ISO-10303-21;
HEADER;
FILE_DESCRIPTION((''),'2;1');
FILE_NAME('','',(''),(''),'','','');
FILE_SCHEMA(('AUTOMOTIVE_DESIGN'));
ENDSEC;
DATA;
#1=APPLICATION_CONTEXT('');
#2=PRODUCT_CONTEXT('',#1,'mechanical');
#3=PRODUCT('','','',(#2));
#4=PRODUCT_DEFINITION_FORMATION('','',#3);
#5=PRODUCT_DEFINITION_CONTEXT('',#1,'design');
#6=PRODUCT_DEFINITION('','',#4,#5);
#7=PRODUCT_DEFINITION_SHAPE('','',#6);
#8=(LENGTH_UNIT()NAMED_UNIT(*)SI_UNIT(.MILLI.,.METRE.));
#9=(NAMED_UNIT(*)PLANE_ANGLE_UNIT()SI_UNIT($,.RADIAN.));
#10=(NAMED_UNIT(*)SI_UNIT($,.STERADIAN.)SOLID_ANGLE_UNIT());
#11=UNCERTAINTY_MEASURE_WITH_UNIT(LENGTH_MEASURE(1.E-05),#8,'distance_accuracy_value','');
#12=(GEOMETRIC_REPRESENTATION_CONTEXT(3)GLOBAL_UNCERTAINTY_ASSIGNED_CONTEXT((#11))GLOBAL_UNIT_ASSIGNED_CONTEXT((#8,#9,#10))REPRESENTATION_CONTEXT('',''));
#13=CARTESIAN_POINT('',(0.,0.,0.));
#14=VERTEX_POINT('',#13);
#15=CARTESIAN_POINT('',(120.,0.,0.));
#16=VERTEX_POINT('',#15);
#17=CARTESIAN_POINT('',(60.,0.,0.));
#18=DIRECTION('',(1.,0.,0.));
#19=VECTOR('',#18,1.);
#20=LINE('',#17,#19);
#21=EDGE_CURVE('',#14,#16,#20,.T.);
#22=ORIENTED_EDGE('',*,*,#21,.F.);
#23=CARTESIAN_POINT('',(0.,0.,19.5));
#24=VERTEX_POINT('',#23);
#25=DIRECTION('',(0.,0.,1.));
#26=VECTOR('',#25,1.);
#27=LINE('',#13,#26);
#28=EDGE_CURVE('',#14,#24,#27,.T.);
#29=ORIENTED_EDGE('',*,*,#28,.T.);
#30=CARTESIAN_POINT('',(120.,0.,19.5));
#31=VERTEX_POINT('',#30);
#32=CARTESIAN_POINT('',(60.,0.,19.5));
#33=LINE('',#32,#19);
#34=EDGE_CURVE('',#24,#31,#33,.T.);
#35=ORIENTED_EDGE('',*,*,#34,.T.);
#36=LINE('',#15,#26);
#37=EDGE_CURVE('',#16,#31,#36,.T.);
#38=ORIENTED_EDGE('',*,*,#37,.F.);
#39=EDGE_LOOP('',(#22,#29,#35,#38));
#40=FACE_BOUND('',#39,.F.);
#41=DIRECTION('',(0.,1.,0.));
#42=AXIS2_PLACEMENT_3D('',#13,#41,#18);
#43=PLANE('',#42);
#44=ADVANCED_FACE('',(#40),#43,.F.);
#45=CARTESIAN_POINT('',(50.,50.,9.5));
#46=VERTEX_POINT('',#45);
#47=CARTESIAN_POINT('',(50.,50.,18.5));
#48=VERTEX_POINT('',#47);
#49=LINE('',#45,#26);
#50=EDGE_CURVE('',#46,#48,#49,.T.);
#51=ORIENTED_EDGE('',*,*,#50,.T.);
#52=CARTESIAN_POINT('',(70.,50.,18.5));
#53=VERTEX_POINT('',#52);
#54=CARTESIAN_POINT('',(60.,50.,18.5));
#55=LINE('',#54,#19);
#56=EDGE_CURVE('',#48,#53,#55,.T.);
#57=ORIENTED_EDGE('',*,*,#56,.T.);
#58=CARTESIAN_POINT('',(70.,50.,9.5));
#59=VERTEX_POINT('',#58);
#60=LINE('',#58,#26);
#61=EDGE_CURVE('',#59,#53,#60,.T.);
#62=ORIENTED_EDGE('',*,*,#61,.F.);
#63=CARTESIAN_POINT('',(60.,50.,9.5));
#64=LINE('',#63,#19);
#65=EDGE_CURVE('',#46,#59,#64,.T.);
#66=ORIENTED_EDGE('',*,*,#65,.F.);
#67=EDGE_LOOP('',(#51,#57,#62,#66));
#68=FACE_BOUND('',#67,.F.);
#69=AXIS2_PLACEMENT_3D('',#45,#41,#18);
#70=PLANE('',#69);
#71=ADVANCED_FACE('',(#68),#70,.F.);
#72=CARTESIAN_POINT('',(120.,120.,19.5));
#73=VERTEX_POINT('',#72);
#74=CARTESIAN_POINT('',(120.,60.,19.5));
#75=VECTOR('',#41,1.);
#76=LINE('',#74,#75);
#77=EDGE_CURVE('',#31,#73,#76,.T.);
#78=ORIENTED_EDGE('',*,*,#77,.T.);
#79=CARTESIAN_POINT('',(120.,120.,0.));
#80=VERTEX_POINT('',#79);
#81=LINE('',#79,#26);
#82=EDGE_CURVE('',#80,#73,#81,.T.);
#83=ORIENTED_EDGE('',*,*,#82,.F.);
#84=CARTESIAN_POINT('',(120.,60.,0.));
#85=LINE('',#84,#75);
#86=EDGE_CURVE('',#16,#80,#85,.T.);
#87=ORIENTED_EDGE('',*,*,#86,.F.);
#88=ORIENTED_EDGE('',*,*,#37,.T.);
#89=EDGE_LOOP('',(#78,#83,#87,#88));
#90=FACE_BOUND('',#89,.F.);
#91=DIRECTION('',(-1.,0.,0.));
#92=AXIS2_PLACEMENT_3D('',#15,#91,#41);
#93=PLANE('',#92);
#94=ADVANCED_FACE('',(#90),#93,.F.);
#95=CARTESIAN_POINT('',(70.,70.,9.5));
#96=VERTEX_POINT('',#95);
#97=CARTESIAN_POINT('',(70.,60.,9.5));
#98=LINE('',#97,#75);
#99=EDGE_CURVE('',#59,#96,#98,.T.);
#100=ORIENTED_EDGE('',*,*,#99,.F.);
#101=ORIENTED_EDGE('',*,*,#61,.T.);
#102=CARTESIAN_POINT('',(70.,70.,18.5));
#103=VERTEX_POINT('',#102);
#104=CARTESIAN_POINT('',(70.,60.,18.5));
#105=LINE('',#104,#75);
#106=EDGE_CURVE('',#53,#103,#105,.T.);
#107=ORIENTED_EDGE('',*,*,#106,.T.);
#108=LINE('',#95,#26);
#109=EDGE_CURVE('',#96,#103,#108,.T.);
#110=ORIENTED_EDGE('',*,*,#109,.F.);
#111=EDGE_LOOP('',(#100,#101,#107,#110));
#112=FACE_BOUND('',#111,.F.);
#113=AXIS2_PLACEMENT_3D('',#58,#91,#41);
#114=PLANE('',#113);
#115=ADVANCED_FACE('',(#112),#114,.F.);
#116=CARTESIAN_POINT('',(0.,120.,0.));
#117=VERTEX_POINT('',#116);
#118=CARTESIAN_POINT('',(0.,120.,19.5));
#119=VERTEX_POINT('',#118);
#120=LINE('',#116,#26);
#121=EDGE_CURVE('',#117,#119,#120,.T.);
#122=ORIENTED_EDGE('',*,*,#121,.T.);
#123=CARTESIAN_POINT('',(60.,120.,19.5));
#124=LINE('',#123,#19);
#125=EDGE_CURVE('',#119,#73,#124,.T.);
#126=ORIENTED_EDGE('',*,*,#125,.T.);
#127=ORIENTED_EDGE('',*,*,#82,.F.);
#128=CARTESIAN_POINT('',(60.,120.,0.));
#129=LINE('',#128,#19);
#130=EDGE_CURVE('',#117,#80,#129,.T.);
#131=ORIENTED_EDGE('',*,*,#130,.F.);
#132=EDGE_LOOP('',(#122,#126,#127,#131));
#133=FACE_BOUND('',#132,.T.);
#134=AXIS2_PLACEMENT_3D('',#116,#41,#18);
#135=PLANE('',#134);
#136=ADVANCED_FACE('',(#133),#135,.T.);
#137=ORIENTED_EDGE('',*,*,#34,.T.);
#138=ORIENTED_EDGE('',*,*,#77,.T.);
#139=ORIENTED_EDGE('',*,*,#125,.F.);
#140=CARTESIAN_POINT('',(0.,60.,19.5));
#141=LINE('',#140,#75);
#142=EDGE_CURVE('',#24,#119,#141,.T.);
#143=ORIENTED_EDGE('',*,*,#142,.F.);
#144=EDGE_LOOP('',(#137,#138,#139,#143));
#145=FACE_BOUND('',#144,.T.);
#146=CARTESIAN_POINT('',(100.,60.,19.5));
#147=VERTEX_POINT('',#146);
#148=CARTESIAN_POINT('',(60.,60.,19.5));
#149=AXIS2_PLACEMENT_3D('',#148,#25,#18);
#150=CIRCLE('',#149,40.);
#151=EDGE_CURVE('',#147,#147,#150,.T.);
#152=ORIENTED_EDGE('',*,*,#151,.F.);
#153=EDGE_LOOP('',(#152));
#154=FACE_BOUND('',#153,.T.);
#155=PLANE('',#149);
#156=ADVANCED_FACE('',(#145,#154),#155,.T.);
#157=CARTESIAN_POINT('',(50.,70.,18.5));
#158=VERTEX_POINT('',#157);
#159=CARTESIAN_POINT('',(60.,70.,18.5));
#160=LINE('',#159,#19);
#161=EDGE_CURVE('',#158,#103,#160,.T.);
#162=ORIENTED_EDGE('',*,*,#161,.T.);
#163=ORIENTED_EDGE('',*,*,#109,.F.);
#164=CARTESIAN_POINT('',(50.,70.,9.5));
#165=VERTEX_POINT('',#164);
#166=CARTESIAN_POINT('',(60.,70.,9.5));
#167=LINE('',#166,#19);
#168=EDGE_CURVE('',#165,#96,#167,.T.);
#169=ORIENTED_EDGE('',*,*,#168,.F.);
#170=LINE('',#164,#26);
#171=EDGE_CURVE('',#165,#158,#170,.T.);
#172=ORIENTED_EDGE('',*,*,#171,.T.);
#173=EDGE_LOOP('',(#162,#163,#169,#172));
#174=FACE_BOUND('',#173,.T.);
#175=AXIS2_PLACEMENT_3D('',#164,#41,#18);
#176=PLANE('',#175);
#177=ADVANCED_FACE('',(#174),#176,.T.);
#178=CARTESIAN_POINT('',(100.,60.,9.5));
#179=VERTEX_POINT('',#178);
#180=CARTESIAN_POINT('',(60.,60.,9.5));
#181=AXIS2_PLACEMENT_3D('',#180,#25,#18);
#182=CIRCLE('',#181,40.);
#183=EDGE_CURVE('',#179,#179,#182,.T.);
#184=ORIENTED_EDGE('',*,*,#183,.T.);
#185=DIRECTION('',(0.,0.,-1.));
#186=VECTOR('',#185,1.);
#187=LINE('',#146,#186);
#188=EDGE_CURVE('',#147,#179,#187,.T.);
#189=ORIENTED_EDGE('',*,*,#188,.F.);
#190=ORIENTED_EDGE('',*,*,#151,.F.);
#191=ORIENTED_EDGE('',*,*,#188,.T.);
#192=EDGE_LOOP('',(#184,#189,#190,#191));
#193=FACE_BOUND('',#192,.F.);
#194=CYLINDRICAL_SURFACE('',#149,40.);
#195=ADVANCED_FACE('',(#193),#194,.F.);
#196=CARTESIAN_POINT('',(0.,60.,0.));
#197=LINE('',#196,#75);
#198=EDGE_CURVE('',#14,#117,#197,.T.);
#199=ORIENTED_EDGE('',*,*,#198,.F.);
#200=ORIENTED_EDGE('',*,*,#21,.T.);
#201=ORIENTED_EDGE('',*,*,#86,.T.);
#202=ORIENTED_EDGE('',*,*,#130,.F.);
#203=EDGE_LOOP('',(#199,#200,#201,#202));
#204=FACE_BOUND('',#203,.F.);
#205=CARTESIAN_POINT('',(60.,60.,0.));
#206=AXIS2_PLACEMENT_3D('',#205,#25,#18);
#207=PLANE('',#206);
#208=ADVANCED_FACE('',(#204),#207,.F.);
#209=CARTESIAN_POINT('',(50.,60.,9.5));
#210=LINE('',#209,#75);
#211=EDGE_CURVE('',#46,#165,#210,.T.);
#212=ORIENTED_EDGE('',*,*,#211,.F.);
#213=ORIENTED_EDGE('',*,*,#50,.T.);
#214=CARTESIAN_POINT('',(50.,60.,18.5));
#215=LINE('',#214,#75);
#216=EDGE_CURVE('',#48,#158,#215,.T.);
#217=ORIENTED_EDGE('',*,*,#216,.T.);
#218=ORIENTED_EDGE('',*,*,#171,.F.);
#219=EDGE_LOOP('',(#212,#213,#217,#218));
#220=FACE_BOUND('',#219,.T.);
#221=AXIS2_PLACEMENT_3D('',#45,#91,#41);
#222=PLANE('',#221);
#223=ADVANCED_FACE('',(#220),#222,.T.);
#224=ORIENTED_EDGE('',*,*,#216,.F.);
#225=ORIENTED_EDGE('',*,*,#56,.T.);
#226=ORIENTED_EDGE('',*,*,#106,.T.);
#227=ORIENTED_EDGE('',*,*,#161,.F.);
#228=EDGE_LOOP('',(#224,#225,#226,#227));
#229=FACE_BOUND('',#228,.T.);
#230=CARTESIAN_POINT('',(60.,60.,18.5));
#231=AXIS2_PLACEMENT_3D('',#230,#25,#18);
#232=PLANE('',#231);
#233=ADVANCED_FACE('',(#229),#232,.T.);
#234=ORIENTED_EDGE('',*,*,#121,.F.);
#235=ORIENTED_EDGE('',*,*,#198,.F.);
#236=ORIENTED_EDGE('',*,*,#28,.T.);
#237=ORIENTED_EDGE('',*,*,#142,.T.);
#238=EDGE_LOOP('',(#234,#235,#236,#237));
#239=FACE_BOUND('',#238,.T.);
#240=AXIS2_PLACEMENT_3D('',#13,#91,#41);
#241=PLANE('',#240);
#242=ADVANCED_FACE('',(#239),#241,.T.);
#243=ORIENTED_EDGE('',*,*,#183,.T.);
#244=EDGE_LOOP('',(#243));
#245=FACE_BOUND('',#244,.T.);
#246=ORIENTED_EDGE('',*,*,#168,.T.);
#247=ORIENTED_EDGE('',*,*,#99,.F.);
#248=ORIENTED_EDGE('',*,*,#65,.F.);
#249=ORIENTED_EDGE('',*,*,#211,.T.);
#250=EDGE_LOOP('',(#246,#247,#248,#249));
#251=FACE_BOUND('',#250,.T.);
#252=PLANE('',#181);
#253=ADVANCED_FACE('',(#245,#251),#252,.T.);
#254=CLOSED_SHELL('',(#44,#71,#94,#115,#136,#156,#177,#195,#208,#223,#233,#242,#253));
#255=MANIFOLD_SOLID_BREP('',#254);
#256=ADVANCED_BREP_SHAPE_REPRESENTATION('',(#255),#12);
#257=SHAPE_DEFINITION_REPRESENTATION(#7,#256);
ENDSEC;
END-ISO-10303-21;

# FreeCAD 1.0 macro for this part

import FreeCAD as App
import Part
import Sketcher

V = App.Vector

doc = App.newDocument("Part")
body = doc.addObject("PartDesign::Body", "Body")

# Sketch on XY plane
sketch1 = body.newObject("Sketcher::SketchObject", "Sketch")
sketch1.AttachmentSupport = (doc.getObject("XY_Plane"), [""])
sketch1.MapMode = "FlatFace"
sketch1.addGeometry([
    Part.LineSegment(V(0, 120, 0), V(0, 0, 0)),
    Part.LineSegment(V(0, 0, 0), V(120, 0, 0)),
    Part.LineSegment(V(120, 0, 0), V(120, 120, 0)),
    Part.LineSegment(V(120, 120, 0), V(0, 120, 0)),
], False)
sketch1.addConstraint([
    Sketcher.Constraint("Coincident", 0, 2, 1, 1),
    Sketcher.Constraint("Coincident", 1, 2, 2, 1),
    Sketcher.Constraint("Coincident", 2, 2, 3, 1),
    Sketcher.Constraint("Coincident", 3, 2, 0, 1),
    Sketcher.Constraint("Vertical", 0),
    Sketcher.Constraint("Horizontal", 1),
    Sketcher.Constraint("Vertical", 2),
    Sketcher.Constraint("Horizontal", 3),
    Sketcher.Constraint("Coincident", 0, 2, -1, 1),
    Sketcher.Constraint("Equal", 3, 0),
    Sketcher.Constraint("DistanceX", 1, 1, 1, 2, 120.0),
])
pad1 = body.newObject("PartDesign::Pad", "Pad")
pad1.Profile = sketch1
pad1.Length = 19.5

# Sketch on XY plane
sketch2 = body.newObject("Sketcher::SketchObject", "Sketch001")
sketch2.AttachmentSupport = (doc.getObject("XY_Plane"), [""])
sketch2.MapMode = "FlatFace"
sketch2.AttachmentOffset = App.Placement(V(0, 0, 19.5), App.Rotation())
sketch2.addGeometry(Part.Circle(V(60, 60, 0), V(0, 0, 1), 40), False)
sketch2.addConstraint([
    Sketcher.Constraint("Diameter", 0, 80.0),
    Sketcher.Constraint("DistanceX", -1, 1, 0, 3, 60.0),
    Sketcher.Constraint("DistanceY", -1, 1, 0, 3, 60.0),
])
pocket1 = body.newObject("PartDesign::Pocket", "Pocket")
pocket1.Profile = sketch2
pocket1.Length = 10

# Sketch on XY plane
sketch3 = body.newObject("Sketcher::SketchObject", "Sketch002")
sketch3.AttachmentSupport = (doc.getObject("XY_Plane"), [""])
sketch3.MapMode = "FlatFace"
sketch3.AttachmentOffset = App.Placement(V(0, 0, 9.5), App.Rotation())
sketch3.addGeometry([
    Part.LineSegment(V(50, 70, 0), V(50, 50, 0)),
    Part.LineSegment(V(50, 50, 0), V(70, 50, 0)),
    Part.LineSegment(V(70, 50, 0), V(70, 70, 0)),
    Part.LineSegment(V(70, 70, 0), V(50, 70, 0)),
], False)
sketch3.addConstraint([
    Sketcher.Constraint("Coincident", 0, 2, 1, 1),
    Sketcher.Constraint("Coincident", 1, 2, 2, 1),
    Sketcher.Constraint("Coincident", 2, 2, 3, 1),
    Sketcher.Constraint("Coincident", 3, 2, 0, 1),
    Sketcher.Constraint("Vertical", 0),
    Sketcher.Constraint("Horizontal", 1),
    Sketcher.Constraint("Vertical", 2),
    Sketcher.Constraint("Horizontal", 3),
    Sketcher.Constraint("Equal", 3, 0),
    Sketcher.Constraint("DistanceX", 1, 1, 1, 2, 20.0),
    Sketcher.Constraint("DistanceX", -1, 1, 0, 2, 50.0),
    Sketcher.Constraint("DistanceY", -1, 1, 0, 2, 50.0),
])
pad2 = body.newObject("PartDesign::Pad", "Pad001")
pad2.Profile = sketch3
pad2.Length = 9

doc.recompute()
